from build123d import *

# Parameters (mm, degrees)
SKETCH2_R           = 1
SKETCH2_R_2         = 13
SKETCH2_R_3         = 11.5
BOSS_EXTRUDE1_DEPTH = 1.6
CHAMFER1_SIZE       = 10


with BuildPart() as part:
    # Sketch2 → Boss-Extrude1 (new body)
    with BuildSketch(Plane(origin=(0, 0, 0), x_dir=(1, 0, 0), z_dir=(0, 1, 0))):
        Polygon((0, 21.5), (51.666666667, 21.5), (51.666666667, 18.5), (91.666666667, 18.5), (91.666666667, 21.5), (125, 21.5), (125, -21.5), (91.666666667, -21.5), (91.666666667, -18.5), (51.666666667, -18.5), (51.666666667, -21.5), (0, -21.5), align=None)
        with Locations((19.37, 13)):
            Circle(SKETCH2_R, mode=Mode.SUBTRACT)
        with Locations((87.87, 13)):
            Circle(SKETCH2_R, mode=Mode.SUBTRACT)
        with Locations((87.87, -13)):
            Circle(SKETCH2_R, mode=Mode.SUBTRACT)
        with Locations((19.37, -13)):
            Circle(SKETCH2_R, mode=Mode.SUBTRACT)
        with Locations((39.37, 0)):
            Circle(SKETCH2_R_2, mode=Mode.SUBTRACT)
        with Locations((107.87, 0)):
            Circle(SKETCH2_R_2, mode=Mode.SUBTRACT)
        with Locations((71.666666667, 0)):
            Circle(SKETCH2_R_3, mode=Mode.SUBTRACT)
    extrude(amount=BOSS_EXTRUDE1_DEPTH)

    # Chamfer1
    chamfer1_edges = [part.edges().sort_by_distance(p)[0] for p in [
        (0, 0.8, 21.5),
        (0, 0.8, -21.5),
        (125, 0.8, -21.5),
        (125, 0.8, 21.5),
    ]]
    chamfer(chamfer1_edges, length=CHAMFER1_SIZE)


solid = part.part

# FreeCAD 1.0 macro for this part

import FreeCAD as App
import Part
import Sketcher
Q = App.Units.Quantity


def edges_at(feature, points):
    """Names of the edges that pass closest to the given points."""
    edges = feature.Shape.Edges
    near = lambda p: min(range(len(edges)), key=lambda i: edges[i].distToShape(Part.Vertex(*p))[0])
    return sorted({f"Edge{near(p) + 1}" for p in points})


def add_polygon(sketch, points):
    """Adds a closed chain of lines whose ends are joined by coincident constraints."""
    first, n = sketch.GeometryCount, len(points)
    for a, b in zip(points, points[1:] + points[:1]):
        sketch.addGeometry(Part.LineSegment(App.Vector(*a, 0), App.Vector(*b, 0)), False)
    for i in range(n):
        sketch.addConstraint(Sketcher.Constraint("Coincident", first + i, 2, first + (i + 1) % n, 1))

doc = App.newDocument("Part")
body = doc.addObject("PartDesign::Body", "Body")

# Sketch on XZ plane
sketch1 = body.newObject("Sketcher::SketchObject", "Sketch")
sketch1.AttachmentSupport = (doc.getObject("XZ_Plane"), [""])
sketch1.MapMode = "FlatFace"
add_polygon(sketch1, [(51.7, -21.5), (0, -21.5), (0, 21.5), (51.7, 21.5), (51.7, 18.5), (91.7, 18.5), (91.7, 21.5), (125, 21.5), (125, -21.5), (91.7, -21.5), (91.7, -18.5), (51.7, -18.5)])  # lines 0-11
sketch1.addGeometry(Part.Circle(App.Vector(87.9, 13, 0), App.Vector(0, 0, 1), 1), False)  # 12
sketch1.addGeometry(Part.Circle(App.Vector(19.4, 13, 0), App.Vector(0, 0, 1), 1), False)  # 13
sketch1.addGeometry(Part.Circle(App.Vector(107.9, 0, 0), App.Vector(0, 0, 1), 13), False)  # 14
sketch1.addGeometry(Part.Circle(App.Vector(71.7, 0, 0), App.Vector(0, 0, 1), 11.5), False)  # 15
sketch1.addGeometry(Part.Circle(App.Vector(87.9, -13, 0), App.Vector(0, 0, 1), 1), False)  # 16
sketch1.addGeometry(Part.Circle(App.Vector(39.4, 0, 0), App.Vector(0, 0, 1), 13), False)  # 17
sketch1.addGeometry(Part.Circle(App.Vector(19.4, -13, 0), App.Vector(0, 0, 1), 1), False)  # 18
sketch1.addConstraint([
    Sketcher.Constraint("Horizontal", 0),
    Sketcher.Constraint("Vertical", 1),
    Sketcher.Constraint("Horizontal", 2),
    Sketcher.Constraint("Vertical", 3),
    Sketcher.Constraint("Horizontal", 4),
    Sketcher.Constraint("Vertical", 5),
    Sketcher.Constraint("Horizontal", 6),
    Sketcher.Constraint("Vertical", 7),
    Sketcher.Constraint("Horizontal", 8),
    Sketcher.Constraint("Vertical", 9),
    Sketcher.Constraint("Horizontal", 10),
    Sketcher.Constraint("Vertical", 11),
    Sketcher.Constraint("Equal", 12, 13),
    Sketcher.Constraint("Equal", 13, 16),
    Sketcher.Constraint("Equal", 14, 17),
    Sketcher.Constraint("Equal", 16, 18),
    Sketcher.Constraint("Symmetric", 0, 2, 1, 2, -1, 1),
    Sketcher.Constraint("Symmetric", 12, 3, 16, 3, -1),
    Sketcher.Constraint("Symmetric", 13, 3, 18, 3, -1),
    Sketcher.Constraint("Symmetric", 5, 2, 8, 2, -1),
    Sketcher.Constraint("Symmetric", 3, 2, 10, 2, -1),
    Sketcher.Constraint("PointOnObject", 14, 3, -1),
    Sketcher.Constraint("PointOnObject", 15, 3, -1),
    Sketcher.Constraint("PointOnObject", 17, 3, -1),
    Sketcher.Constraint("Horizontal", 12, 3, 13, 3),
    Sketcher.Constraint("Horizontal", 2, 2, 5, 2),
    Sketcher.Constraint("Diameter", 12, Q("2 mm")),
    Sketcher.Constraint("Diameter", 14, Q("26 mm")),
    Sketcher.Constraint("Diameter", 15, Q("23 mm")),
    Sketcher.Constraint("DistanceX", 4, 1, 4, 2, Q("40 mm")),
    Sketcher.Constraint("DistanceY", 1, 1, 1, 2, Q("43 mm")),
    Sketcher.Constraint("DistanceY", 3, 2, 3, 1, Q("3 mm")),
    Sketcher.Constraint("DistanceY", -1, 1, 12, 3, Q("13 mm")),
    Sketcher.Constraint("DistanceX", -1, 1, 6, 2, Q("125 mm")),
    Sketcher.Constraint("DistanceX", 12, 3, 14, 3, Q("20 mm")),
    Sketcher.Constraint("DistanceX", 13, 3, 17, 3, Q("20 mm")),
    Sketcher.Constraint("DistanceX", 2, 2, 15, 3, Q("20 mm")),
    Sketcher.Constraint("DistanceX", 13, 3, 12, 3, Q("68.5 mm")),
    Sketcher.Constraint("DistanceX", -1, 1, 12, 3, Q("87.87 mm")),
    Sketcher.Constraint("DistanceX", 0, 2, 0, 1, Q("51.666667 mm")),
])
pad1 = body.newObject("PartDesign::Pad", "Pad")
pad1.Profile = sketch1
pad1.Length = 1.6
pad1.Reversed = True
doc.recompute()

chamfer = body.newObject("PartDesign::Chamfer", "Chamfer")
chamfer.Base = (pad1, edges_at(pad1, [
    (0, 0.8, 21.5),
    (0, 0.8, -21.5),
    (125, 0.8, -21.5),
    (125, 0.8, 21.5),
]))
chamfer.Size = 10

doc.recompute()
